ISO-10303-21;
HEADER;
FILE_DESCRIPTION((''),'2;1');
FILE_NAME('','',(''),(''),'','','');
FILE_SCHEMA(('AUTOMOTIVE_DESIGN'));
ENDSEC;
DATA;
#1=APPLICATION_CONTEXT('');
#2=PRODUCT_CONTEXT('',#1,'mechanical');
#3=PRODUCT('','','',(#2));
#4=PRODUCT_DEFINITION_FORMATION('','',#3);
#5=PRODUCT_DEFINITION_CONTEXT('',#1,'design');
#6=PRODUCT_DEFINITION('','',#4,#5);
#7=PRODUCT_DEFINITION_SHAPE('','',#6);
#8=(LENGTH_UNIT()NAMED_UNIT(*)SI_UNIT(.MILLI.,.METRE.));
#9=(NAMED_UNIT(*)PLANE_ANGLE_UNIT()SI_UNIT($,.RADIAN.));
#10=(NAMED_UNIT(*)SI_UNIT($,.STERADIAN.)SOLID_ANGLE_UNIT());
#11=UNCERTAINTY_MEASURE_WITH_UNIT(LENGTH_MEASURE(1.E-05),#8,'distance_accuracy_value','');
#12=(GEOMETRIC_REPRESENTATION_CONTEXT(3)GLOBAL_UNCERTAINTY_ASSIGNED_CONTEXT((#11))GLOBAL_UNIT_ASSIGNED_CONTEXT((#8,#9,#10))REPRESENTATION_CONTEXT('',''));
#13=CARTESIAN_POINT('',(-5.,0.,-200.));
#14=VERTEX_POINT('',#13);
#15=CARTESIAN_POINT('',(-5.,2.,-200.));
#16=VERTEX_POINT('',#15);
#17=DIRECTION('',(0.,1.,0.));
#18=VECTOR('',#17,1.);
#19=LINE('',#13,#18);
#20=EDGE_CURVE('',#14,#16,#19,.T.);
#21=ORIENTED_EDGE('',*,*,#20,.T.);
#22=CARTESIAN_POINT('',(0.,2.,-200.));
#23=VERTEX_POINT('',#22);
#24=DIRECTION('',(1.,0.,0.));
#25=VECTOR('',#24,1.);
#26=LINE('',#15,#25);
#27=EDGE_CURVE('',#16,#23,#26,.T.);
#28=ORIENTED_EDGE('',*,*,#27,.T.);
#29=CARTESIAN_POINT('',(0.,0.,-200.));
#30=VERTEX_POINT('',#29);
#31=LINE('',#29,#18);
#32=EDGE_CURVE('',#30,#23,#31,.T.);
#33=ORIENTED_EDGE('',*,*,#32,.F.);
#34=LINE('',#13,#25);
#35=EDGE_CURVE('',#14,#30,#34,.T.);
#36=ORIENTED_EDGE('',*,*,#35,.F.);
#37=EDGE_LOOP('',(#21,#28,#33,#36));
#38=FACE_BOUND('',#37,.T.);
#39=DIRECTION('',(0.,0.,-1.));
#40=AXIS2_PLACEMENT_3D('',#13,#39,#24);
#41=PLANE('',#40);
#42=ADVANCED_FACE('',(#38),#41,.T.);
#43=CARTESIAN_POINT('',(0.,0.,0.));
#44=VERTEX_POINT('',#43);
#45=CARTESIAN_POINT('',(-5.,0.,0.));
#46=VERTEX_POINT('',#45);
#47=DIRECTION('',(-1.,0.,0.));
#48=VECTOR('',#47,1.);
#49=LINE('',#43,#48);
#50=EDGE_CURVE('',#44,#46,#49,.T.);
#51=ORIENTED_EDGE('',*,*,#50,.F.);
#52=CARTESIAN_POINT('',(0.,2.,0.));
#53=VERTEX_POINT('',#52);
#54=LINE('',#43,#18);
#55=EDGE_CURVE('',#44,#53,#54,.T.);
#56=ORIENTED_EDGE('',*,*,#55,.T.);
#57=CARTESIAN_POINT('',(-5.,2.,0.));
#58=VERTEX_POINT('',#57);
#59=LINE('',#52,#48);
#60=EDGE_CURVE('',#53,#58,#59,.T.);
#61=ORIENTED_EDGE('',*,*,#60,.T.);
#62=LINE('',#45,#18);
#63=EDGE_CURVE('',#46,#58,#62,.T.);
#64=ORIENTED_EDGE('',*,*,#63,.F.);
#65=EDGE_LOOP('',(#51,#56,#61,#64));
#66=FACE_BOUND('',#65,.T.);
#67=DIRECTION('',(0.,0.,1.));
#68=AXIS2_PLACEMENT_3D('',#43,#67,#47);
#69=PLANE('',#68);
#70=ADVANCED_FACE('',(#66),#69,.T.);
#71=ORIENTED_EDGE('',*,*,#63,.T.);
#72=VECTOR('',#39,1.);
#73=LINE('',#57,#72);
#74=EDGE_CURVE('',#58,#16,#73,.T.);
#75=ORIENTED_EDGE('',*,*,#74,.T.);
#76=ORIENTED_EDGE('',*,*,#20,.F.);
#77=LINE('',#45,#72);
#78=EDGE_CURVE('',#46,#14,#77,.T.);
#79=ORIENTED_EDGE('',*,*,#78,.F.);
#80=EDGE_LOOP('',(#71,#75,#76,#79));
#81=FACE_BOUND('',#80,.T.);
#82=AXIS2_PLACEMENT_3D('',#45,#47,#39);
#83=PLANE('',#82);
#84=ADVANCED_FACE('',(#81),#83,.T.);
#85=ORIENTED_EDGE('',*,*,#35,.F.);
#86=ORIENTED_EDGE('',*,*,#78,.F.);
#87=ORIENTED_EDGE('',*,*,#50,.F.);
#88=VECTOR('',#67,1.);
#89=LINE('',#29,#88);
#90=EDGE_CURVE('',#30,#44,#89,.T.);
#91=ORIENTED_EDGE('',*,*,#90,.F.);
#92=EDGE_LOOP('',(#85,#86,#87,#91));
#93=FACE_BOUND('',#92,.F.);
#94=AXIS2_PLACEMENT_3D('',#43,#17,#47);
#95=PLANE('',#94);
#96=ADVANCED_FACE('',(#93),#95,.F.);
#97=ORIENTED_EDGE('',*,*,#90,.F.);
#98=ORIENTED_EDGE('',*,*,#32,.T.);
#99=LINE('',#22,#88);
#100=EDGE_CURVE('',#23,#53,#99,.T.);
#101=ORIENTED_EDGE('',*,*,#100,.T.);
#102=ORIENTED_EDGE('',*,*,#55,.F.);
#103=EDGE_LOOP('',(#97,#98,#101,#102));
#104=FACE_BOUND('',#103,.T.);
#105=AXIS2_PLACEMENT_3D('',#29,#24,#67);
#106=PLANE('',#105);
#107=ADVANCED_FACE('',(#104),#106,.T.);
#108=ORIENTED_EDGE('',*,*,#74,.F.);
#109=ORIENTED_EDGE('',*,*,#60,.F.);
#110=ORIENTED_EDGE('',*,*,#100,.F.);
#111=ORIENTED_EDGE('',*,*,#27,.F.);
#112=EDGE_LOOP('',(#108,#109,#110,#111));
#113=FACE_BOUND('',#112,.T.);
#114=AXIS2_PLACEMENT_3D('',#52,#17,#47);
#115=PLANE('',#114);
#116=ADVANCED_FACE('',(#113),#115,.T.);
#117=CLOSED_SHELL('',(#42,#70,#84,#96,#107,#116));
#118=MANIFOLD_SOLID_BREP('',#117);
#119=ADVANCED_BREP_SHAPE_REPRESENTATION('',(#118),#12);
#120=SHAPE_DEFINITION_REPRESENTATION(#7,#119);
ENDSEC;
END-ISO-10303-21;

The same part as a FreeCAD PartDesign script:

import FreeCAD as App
import Part
import Sketcher
Q = App.Units.Quantity

doc = App.newDocument("Part")
body = doc.addObject("PartDesign::Body", "Body")

sketch1 = doc.addObject("Sketcher::SketchObject", "Sketch")
body.addObject(sketch1)
sketch1.AttachmentSupport = (doc.XZ_Plane, [""])
sketch1.MapMode = "FlatFace"
sketch1.addGeometry([
    Part.LineSegment(App.Vector(-5, 0, 0), App.Vector(0, 0, 0)),
    Part.LineSegment(App.Vector(0, 0, 0), App.Vector(0, -200, 0)),
    Part.LineSegment(App.Vector(0, -200, 0), App.Vector(-5, -200, 0)),
    Part.LineSegment(App.Vector(-5, -200, 0), App.Vector(-5, 0, 0)),
], False)
sketch1.addConstraint([
    Sketcher.Constraint("Coincident", 0, 2, 1, 1),
    Sketcher.Constraint("Coincident", 1, 2, 2, 1),
    Sketcher.Constraint("Coincident", 2, 2, 3, 1),
    Sketcher.Constraint("Coincident", 3, 2, 0, 1),
    Sketcher.Constraint("Horizontal", 0),
    Sketcher.Constraint("Vertical", 1),
    Sketcher.Constraint("Horizontal", 2),
    Sketcher.Constraint("Vertical", 3),
    Sketcher.Constraint("Coincident", 0, 2, -1, 1),
    Sketcher.Constraint("DistanceX", 0, 1, 0, 2, Q("5 mm")),
    Sketcher.Constraint("DistanceY", 1, 2, 1, 1, Q("200 mm")),
])
pad1 = doc.addObject("PartDesign::Pad", "Pad")
body.addObject(pad1)
pad1.Profile = sketch1
pad1.Length = 2
pad1.Reversed = True

doc.recompute()
